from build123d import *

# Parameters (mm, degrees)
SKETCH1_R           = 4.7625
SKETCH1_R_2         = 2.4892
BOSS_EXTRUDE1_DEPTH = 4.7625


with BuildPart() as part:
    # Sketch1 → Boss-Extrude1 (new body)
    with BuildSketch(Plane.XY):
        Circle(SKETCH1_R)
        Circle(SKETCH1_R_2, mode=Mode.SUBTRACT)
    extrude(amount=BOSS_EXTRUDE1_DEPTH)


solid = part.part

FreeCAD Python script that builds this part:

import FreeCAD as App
import Part
import Sketcher

V = App.Vector
Q = App.Units.Quantity

doc = App.newDocument("Part")
body = doc.addObject("PartDesign::Body", "Body")

# Sketch on XY plane
sketch1 = body.newObject("Sketcher::SketchObject", "Sketch")
sketch1.AttachmentSupport = (doc.getObject("XY_Plane"), [""])
sketch1.MapMode = "FlatFace"
sketch1.addGeometry(Part.Circle(V(0, 0, 0), V(0, 0, 1), 4.8), False)
sketch1.addGeometry(Part.Circle(V(0, 0, 0), V(0, 0, 1), 2.5), False)
sketch1.addConstraint(Sketcher.Constraint("Coincident", 0, 3, -1, 1))
sketch1.addConstraint(Sketcher.Constraint("Coincident", 1, 3, -1, 1))
sketch1.addConstraint(Sketcher.Constraint("Diameter", 0, Q("0.375 in")))
sketch1.addConstraint(Sketcher.Constraint("Diameter", 1, Q("0.196 in")))
pad1 = body.newObject("PartDesign::Pad", "Pad")
pad1.Profile = sketch1
pad1.Length = Q("0.1875 in")

doc.recompute()
